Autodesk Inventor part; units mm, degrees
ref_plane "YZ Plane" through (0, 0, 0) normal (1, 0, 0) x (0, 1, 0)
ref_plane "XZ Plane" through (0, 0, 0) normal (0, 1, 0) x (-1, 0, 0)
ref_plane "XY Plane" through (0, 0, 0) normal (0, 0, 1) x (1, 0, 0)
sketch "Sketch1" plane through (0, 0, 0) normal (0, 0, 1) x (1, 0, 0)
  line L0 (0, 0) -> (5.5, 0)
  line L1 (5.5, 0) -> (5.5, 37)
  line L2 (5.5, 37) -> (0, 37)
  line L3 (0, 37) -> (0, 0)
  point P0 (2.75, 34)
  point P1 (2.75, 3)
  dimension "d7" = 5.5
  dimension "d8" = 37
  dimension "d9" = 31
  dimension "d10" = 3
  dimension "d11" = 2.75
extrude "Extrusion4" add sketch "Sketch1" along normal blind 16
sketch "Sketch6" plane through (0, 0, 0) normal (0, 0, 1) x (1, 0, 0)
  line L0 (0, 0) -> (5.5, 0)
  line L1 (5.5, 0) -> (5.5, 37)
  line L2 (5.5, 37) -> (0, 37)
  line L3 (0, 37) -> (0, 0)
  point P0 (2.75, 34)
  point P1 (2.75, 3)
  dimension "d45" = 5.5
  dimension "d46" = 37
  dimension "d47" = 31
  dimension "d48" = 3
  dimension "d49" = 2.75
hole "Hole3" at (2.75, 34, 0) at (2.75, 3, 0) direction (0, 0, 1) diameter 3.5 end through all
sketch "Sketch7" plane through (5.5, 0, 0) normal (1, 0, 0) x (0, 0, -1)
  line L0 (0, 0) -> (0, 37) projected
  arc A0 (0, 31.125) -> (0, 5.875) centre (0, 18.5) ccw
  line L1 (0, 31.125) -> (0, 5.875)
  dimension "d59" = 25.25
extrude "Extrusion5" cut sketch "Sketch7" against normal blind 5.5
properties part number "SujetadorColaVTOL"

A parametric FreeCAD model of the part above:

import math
import FreeCAD as App
import Part
import Sketcher

V = App.Vector


def add_polygon(sketch, points):
    """Adds a closed chain of lines whose ends are joined by coincident constraints."""
    first, n = sketch.GeometryCount, len(points)
    for a, b in zip(points, points[1:] + points[:1]):
        sketch.addGeometry(Part.LineSegment(App.Vector(*a, 0), App.Vector(*b, 0)), False)
    for i in range(n):
        sketch.addConstraint(Sketcher.Constraint("Coincident", first + i, 2, first + (i + 1) % n, 1))

doc = App.newDocument("Part")
body = doc.addObject("PartDesign::Body", "Body")

sketch1 = body.newObject("Sketcher::SketchObject", "Sketch")
sketch1.AttachmentSupport = (doc.getObject("XY_Plane"), [""])
sketch1.MapMode = "FlatFace"
add_polygon(sketch1, [(0, 37), (0, 0), (6, 0), (6, 37)])
sketch1.addConstraint([
    Sketcher.Constraint("Vertical", 0),
    Sketcher.Constraint("Horizontal", 1),
    Sketcher.Constraint("Vertical", 2),
    Sketcher.Constraint("Horizontal", 3),
    Sketcher.Constraint("Coincident", 0, 2, -1, 1),
    Sketcher.Constraint("DistanceY", 0, 2, 0, 1, 37.0),
    Sketcher.Constraint("DistanceX", 1, 1, 1, 2, 5.5),
])
pad1 = body.newObject("PartDesign::Pad", "Pad")
pad1.Profile = sketch1
pad1.Length = 16

sketch2 = body.newObject("Sketcher::SketchObject", "Sketch001")
sketch2.AttachmentSupport = (doc.getObject("XY_Plane"), [""])
sketch2.MapMode = "FlatFace"
sketch2.addGeometry([
    Part.Circle(V(2.8, 34, 0), V(0, 0, 1), 1.8),
    Part.Circle(V(2.8, 3, 0), V(0, 0, 1), 1.8),
], False)
sketch2.addConstraint([
    Sketcher.Constraint("Equal", 0, 1),
    Sketcher.Constraint("Vertical", 0, 3, 1, 3),
    Sketcher.Constraint("Diameter", 0, 3.5),
    Sketcher.Constraint("DistanceY", -1, 1, 0, 3, 34.0),
    Sketcher.Constraint("DistanceY", -1, 1, 1, 3, 3.0),
    Sketcher.Constraint("DistanceX", -1, 1, 0, 3, 2.75),
])
doc.recompute()
hole = body.newObject("PartDesign::Hole", "Hole")
hole.Profile = sketch2
hole.ThreadType = "None"
hole.Diameter = 3.5
hole.DepthType = "ThroughAll"
hole.Reversed = True

sketch3 = body.newObject("Sketcher::SketchObject", "Sketch002")
sketch3.AttachmentSupport = (doc.getObject("YZ_Plane"), [""])
sketch3.MapMode = "FlatFace"
sketch3.AttachmentOffset = App.Placement(V(0, 0, 5.5), App.Rotation())
sketch3.addGeometry([
    Part.ArcOfCircle(Part.Circle(V(18, 0, 0), V(0, 0, 1), 13), math.radians(0), math.radians(180)),
    Part.LineSegment(V(6, 0, 0), V(31, 0, 0)),
], False)
sketch3.addConstraint([
    Sketcher.Constraint("Coincident", 0, 1, 1, 2),
    Sketcher.Constraint("Coincident", 1, 1, 0, 2),
    Sketcher.Constraint("Horizontal", 1),
    Sketcher.Constraint("PointOnObject", 0, 3, -1),
    Sketcher.Constraint("PointOnObject", 0, 1, -1),
    Sketcher.Constraint("Radius", 0, 12.625),
    Sketcher.Constraint("DistanceX", -1, 1, 0, 3, 18.5),
])
pocket1 = body.newObject("PartDesign::Pocket", "Pocket")
pocket1.Profile = sketch3
pocket1.Length = 5.5

doc.recompute()
